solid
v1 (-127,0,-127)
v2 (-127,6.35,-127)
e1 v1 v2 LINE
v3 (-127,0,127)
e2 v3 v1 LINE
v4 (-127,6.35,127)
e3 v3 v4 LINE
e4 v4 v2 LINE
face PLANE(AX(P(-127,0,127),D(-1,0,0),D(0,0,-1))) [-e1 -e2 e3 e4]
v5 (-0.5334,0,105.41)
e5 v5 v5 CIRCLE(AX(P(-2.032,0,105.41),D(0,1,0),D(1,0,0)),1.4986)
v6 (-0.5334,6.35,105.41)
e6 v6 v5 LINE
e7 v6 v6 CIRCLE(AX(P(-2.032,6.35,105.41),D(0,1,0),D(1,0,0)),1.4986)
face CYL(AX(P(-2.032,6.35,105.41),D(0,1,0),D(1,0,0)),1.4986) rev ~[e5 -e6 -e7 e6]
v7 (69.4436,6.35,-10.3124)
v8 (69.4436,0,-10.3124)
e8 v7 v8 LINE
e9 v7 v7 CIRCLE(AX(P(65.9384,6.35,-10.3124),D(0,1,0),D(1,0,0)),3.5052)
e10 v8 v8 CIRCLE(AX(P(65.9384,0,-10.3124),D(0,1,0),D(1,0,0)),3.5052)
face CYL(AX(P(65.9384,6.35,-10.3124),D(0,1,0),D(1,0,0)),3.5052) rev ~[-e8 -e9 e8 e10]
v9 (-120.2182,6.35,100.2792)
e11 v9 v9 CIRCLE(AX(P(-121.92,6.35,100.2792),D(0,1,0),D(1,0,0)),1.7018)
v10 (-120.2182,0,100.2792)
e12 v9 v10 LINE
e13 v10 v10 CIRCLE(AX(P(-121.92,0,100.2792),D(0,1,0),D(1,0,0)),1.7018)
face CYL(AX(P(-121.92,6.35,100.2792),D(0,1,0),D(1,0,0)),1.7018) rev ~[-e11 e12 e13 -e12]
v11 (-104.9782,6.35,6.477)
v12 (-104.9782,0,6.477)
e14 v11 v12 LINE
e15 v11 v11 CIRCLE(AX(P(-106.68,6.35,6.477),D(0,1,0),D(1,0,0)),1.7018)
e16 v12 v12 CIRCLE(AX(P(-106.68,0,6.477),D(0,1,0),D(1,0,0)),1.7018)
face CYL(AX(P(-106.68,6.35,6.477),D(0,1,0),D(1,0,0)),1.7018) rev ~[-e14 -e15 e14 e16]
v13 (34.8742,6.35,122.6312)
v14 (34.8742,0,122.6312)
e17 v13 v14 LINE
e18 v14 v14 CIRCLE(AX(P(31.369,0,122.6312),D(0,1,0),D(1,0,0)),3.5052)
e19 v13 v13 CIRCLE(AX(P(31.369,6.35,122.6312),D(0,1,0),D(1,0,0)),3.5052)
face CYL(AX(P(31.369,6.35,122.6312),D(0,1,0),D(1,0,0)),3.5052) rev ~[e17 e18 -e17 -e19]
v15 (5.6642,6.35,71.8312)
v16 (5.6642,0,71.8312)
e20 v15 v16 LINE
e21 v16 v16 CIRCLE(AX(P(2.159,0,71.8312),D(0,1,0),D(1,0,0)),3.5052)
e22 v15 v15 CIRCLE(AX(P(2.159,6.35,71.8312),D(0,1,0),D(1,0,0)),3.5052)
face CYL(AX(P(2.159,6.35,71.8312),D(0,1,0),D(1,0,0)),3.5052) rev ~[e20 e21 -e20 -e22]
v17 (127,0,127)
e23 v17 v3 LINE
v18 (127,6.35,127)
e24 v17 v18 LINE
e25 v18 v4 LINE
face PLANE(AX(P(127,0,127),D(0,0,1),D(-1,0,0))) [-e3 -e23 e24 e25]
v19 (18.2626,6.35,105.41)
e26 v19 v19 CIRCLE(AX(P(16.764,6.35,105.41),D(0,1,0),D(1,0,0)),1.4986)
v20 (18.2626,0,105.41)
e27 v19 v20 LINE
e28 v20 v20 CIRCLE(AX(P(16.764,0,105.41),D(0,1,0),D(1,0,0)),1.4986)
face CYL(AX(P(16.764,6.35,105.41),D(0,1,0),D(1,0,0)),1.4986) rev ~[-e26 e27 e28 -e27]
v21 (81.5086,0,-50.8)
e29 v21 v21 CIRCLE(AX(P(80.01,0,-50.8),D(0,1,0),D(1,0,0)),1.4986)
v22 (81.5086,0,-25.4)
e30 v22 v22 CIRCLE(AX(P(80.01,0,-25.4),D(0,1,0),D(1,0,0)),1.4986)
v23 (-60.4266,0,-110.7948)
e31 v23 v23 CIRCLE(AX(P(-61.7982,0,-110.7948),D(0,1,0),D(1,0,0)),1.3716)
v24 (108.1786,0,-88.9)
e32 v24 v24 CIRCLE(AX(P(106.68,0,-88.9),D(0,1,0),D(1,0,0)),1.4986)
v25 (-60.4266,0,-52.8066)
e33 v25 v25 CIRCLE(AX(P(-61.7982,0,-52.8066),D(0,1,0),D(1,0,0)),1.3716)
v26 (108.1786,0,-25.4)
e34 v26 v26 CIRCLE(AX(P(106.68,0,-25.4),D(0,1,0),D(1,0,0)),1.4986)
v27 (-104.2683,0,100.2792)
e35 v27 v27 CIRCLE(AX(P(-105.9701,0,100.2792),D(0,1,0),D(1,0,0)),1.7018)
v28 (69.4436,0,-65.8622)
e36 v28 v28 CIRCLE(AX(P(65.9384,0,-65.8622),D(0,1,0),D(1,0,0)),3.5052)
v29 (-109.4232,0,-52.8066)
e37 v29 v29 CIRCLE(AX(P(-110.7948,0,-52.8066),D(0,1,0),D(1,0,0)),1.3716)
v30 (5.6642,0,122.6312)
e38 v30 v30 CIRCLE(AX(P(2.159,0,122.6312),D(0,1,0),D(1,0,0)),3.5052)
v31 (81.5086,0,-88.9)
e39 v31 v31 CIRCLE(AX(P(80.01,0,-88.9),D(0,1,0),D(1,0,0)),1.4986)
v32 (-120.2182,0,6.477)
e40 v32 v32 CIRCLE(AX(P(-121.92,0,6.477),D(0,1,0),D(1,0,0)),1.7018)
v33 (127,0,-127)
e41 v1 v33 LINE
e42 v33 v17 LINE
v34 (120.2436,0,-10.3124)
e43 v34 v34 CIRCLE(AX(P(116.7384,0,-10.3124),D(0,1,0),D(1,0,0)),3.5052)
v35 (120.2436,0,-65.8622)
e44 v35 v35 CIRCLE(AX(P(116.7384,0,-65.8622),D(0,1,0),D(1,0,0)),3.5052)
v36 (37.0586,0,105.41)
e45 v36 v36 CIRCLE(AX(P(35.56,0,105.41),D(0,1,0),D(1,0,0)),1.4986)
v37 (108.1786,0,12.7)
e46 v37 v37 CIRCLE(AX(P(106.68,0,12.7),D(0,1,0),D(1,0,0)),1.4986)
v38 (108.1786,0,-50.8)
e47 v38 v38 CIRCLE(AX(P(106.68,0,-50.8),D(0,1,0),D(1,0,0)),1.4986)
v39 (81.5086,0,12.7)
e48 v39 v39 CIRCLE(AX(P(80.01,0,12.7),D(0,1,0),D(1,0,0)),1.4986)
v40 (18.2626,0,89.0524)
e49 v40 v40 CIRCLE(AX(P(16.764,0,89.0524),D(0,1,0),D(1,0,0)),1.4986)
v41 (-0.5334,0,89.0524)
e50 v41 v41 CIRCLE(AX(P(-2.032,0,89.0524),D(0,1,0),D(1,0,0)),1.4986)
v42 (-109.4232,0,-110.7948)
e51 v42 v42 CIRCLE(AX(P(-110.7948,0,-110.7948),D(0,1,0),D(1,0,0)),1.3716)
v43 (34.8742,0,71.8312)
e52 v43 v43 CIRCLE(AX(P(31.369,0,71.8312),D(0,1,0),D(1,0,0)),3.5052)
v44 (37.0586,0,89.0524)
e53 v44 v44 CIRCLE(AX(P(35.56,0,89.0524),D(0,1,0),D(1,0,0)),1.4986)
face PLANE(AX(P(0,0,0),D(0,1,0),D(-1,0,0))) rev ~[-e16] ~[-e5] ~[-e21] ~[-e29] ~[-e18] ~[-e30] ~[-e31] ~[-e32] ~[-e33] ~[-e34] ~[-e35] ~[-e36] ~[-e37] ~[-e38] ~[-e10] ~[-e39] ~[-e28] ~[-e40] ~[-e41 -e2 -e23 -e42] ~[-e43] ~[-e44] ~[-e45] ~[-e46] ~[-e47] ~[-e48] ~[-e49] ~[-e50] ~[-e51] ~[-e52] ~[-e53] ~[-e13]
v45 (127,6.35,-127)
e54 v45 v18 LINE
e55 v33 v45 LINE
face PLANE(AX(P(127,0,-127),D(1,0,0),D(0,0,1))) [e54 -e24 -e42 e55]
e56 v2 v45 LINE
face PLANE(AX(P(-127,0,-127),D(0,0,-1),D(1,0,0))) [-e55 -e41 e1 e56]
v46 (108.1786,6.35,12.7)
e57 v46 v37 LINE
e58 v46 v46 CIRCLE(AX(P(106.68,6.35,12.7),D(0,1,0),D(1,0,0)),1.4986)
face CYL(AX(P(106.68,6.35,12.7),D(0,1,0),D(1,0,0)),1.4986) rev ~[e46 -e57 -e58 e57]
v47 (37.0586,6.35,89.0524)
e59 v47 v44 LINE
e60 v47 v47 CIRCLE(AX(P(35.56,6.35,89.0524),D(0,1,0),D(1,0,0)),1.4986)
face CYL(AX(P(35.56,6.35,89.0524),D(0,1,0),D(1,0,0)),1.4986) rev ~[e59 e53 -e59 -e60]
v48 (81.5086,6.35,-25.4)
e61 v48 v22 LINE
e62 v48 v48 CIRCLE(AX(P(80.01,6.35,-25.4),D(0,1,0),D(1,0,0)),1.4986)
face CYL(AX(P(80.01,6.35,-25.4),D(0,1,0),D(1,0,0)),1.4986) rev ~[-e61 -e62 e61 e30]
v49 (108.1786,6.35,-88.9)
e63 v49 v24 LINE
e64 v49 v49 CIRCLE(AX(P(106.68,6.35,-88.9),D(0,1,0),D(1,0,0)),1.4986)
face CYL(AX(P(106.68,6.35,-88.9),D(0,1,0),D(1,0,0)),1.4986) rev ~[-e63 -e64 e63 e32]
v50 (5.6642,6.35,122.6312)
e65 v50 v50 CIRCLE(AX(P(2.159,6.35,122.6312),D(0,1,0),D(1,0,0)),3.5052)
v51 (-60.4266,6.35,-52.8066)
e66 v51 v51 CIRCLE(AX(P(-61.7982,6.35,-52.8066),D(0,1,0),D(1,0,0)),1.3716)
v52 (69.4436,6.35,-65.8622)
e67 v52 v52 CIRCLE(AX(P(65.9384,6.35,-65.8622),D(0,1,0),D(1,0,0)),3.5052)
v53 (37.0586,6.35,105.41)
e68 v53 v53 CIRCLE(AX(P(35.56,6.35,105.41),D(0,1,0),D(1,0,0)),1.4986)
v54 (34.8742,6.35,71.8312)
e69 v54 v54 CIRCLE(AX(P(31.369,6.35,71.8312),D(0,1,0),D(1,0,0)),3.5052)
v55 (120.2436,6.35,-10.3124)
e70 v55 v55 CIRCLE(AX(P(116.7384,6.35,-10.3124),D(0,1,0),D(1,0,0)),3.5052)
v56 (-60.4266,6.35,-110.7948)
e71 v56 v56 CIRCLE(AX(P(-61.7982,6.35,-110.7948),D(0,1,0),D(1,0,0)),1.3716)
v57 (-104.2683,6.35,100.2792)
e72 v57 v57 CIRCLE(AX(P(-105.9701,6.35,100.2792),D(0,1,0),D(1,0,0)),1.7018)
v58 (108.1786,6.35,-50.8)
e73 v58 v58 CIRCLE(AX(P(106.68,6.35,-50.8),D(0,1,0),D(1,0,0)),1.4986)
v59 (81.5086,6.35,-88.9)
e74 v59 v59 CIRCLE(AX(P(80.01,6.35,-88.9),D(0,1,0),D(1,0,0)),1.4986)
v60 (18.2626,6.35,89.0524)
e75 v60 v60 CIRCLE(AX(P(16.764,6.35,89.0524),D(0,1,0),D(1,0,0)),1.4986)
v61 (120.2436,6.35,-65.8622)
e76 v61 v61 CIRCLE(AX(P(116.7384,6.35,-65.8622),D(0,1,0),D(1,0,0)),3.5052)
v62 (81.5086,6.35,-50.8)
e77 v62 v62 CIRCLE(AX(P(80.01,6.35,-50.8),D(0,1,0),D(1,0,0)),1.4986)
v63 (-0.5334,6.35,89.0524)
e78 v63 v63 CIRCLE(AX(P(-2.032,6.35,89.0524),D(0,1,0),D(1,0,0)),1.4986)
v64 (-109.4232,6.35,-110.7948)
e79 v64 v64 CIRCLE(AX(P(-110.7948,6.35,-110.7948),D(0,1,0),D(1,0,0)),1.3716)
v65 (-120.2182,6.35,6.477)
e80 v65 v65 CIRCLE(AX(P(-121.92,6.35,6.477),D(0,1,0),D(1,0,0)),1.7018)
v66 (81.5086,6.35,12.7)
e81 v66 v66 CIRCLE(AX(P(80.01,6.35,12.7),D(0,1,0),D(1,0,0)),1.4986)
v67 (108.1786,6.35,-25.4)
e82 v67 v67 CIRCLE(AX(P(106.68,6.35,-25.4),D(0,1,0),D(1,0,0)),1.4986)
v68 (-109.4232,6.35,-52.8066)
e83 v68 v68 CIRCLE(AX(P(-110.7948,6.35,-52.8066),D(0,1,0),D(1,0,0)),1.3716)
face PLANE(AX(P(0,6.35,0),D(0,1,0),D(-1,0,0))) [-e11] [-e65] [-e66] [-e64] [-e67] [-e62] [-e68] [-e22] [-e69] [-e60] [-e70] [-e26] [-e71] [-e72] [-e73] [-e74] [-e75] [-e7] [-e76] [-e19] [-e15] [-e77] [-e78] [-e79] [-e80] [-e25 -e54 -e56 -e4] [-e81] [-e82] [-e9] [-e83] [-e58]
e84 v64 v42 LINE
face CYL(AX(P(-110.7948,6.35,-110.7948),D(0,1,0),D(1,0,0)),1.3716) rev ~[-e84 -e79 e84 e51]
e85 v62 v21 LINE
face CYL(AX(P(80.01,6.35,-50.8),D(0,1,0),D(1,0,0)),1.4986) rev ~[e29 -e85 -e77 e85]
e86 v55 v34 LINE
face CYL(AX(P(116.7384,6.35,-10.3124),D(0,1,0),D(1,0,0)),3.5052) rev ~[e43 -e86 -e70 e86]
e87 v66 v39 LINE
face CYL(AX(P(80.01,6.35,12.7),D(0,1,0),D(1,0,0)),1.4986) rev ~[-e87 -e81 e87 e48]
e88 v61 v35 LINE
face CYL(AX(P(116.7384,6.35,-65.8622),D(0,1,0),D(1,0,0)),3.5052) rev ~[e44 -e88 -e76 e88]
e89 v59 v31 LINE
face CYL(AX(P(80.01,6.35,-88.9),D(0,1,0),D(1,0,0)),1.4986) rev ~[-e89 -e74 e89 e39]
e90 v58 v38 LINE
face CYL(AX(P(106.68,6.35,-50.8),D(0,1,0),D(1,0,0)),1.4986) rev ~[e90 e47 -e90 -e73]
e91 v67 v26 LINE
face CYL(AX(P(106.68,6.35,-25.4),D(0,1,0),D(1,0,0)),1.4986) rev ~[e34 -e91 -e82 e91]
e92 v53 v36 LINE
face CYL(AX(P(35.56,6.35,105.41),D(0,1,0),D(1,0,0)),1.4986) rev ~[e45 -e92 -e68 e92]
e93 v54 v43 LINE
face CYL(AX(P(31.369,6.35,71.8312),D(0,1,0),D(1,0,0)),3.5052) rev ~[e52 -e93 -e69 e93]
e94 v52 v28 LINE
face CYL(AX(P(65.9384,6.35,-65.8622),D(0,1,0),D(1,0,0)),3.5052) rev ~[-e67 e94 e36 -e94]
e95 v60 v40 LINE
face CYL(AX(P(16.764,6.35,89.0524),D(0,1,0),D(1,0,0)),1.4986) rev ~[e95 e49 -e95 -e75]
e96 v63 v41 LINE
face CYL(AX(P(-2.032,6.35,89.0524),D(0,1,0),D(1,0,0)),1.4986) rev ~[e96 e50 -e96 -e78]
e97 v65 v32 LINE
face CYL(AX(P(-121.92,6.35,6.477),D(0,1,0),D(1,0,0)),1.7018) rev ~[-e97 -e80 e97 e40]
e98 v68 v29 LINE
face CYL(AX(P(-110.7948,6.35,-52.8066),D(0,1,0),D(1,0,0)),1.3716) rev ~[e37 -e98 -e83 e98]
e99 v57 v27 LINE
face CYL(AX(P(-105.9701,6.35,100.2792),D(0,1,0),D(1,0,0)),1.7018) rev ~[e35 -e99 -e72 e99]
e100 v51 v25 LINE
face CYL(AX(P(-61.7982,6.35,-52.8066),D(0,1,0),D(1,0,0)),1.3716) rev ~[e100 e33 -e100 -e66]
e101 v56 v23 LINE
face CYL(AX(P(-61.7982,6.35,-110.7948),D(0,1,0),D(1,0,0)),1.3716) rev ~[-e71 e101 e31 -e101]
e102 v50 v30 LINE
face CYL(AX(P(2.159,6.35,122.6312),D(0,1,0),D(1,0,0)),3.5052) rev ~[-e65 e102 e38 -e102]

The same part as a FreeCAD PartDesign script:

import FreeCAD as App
import Part
import Sketcher
from FreeCAD import Vector
Q = App.Units.Quantity

doc = App.newDocument("Part")
body = doc.addObject("PartDesign::Body", "Body")

sketch1 = body.newObject("Sketcher::SketchObject", "Sketch")
sketch1.AttachmentSupport = (doc.getObject("XZ_Plane"), [""])
sketch1.MapMode = "FlatFace"
sketch1.addGeometry([
    Part.LineSegment(Vector(-127, 127, 0), Vector(127, 127, 0)),
    Part.LineSegment(Vector(127, 127, 0), Vector(127, -127, 0)),
    Part.LineSegment(Vector(127, -127, 0), Vector(-127, -127, 0)),
    Part.LineSegment(Vector(-127, -127, 0), Vector(-127, 127, 0)),
], False)
sketch1.addConstraint([
    Sketcher.Constraint("Coincident", 0, 2, 1, 1),
    Sketcher.Constraint("Coincident", 1, 2, 2, 1),
    Sketcher.Constraint("Coincident", 2, 2, 3, 1),
    Sketcher.Constraint("Coincident", 3, 2, 0, 1),
    Sketcher.Constraint("Horizontal", 0),
    Sketcher.Constraint("Vertical", 1),
    Sketcher.Constraint("Horizontal", 2),
    Sketcher.Constraint("Vertical", 3),
    Sketcher.Constraint("Symmetric", 0, 2, 2, 2, -1, 1),
    Sketcher.Constraint("Equal", 2, 1),
    Sketcher.Constraint("DistanceX", 0, 1, 0, 2, Q("10 in")),
])
pad1 = body.newObject("PartDesign::Pad", "Pad")
pad1.Profile = sketch1
pad1.Length = Q("0.25 in")
pad1.Reversed = True

sketch2 = body.newObject("Sketcher::SketchObject", "Sketch001")
sketch2.AttachmentSupport = (doc.getObject("XZ_Plane"), [""])
sketch2.MapMode = "FlatFace"
sketch2.AttachmentOffset = App.Placement(Vector(0, 0, -0.25 * 25.4), App.Rotation())
sketch2.addGeometry([
    Part.Circle(Vector(80.01, 12.7, 0), Vector(0, 0, 1), 1.4986),
    Part.Circle(Vector(80.01, -25.4, 0), Vector(0, 0, 1), 1.4986),
    Part.Circle(Vector(80.01, -50.8, 0), Vector(0, 0, 1), 1.4986),
    Part.Circle(Vector(80.01, -88.9, 0), Vector(0, 0, 1), 1.4986),
    Part.Circle(Vector(106.68, 12.7, 0), Vector(0, 0, 1), 1.4986),
    Part.Circle(Vector(106.68, -25.4, 0), Vector(0, 0, 1), 1.4986),
    Part.Circle(Vector(106.68, -50.8, 0), Vector(0, 0, 1), 1.4986),
    Part.Circle(Vector(106.68, -88.9, 0), Vector(0, 0, 1), 1.4986),
], False)
sketch2.addConstraint([
    Sketcher.Constraint("Equal", 0, 1),
    Sketcher.Constraint("Equal", 1, 2),
    Sketcher.Constraint("Equal", 2, 3),
    Sketcher.Constraint("Equal", 3, 4),
    Sketcher.Constraint("Equal", 4, 5),
    Sketcher.Constraint("Equal", 5, 6),
    Sketcher.Constraint("Equal", 6, 7),
    Sketcher.Constraint("Horizontal", 0, 3, 4, 3),
    Sketcher.Constraint("Horizontal", 1, 3, 5, 3),
    Sketcher.Constraint("Horizontal", 2, 3, 6, 3),
    Sketcher.Constraint("Horizontal", 3, 3, 7, 3),
    Sketcher.Constraint("Vertical", 0, 3, 1, 3),
    Sketcher.Constraint("Vertical", 1, 3, 2, 3),
    Sketcher.Constraint("Vertical", 2, 3, 3, 3),
    Sketcher.Constraint("Vertical", 4, 3, 5, 3),
    Sketcher.Constraint("Vertical", 5, 3, 6, 3),
    Sketcher.Constraint("Vertical", 6, 3, 7, 3),
    Sketcher.Constraint("Diameter", 0, Q("0.118 in")),
    Sketcher.Constraint("DistanceY", 1, 3, -1, 1, Q("1 in")),
    Sketcher.Constraint("DistanceY", 2, 3, -1, 1, Q("2 in")),
    Sketcher.Constraint("DistanceY", 3, 3, 0, 3, Q("4 in")),
    Sketcher.Constraint("DistanceY", -1, 1, 0, 3, Q("0.5 in")),
    Sketcher.Constraint("DistanceX", -1, 1, 4, 3, Q("4.2 in")),
    Sketcher.Constraint("DistanceX", -1, 1, 0, 3, Q("3.15 in")),
])
pocket1 = body.newObject("PartDesign::Pocket", "Pocket")
pocket1.Profile = sketch2
pocket1.Length = Q("0.25 in")
pocket1.Reversed = True

sketch3 = body.newObject("Sketcher::SketchObject", "Sketch002")
sketch3.AttachmentSupport = (doc.getObject("XZ_Plane"), [""])
sketch3.MapMode = "FlatFace"
sketch3.AttachmentOffset = App.Placement(Vector(0, 0, -0.25 * 25.4), App.Rotation())
sketch3.addGeometry([
    Part.Circle(Vector(65.9384, -10.3124, 0), Vector(0, 0, 1), 3.5052),
    Part.Circle(Vector(65.9384, -65.8622, 0), Vector(0, 0, 1), 3.5052),
    Part.Circle(Vector(116.7384, -65.8622, 0), Vector(0, 0, 1), 3.5052),
    Part.Circle(Vector(116.7384, -10.3124, 0), Vector(0, 0, 1), 3.5052),
], False)
sketch3.addConstraint([
    Sketcher.Constraint("Equal", 0, 1),
    Sketcher.Constraint("Equal", 1, 2),
    Sketcher.Constraint("Equal", 2, 3),
    Sketcher.Constraint("Horizontal", 1, 3, 2, 3),
    Sketcher.Constraint("Horizontal", 0, 3, 3, 3),
    Sketcher.Constraint("Vertical", 0, 3, 1, 3),
    Sketcher.Constraint("Vertical", 2, 3, 3, 3),
    Sketcher.Constraint("Diameter", 0, Q("0.276 in")),
    Sketcher.Constraint("DistanceX", 1, 3, 2, 3, Q("2 in")),
    Sketcher.Constraint("DistanceX", -1, 1, 0, 3, Q("2.596 in")),
    Sketcher.Constraint("DistanceY", 0, 3, -1, 1, Q("0.406 in")),
    Sketcher.Constraint("DistanceY", 1, 3, -1, 1, Q("2.593 in")),
])
pocket2 = body.newObject("PartDesign::Pocket", "Pocket001")
pocket2.Profile = sketch3
pocket2.Length = Q("0.25 in")
pocket2.Reversed = True

sketch4 = body.newObject("Sketcher::SketchObject", "Sketch003")
sketch4.AttachmentSupport = (doc.getObject("XZ_Plane"), [""])
sketch4.MapMode = "FlatFace"
sketch4.AttachmentOffset = App.Placement(Vector(0, 0, -0.25 * 25.4), App.Rotation())
sketch4.addGeometry([
    Part.Circle(Vector(2.159, 71.8312, 0), Vector(0, 0, 1), 3.5052),
    Part.Circle(Vector(2.159, 122.6312, 0), Vector(0, 0, 1), 3.5052),
    Part.Circle(Vector(31.369, 71.8312, 0), Vector(0, 0, 1), 3.5052),
    Part.Circle(Vector(31.369, 122.6312, 0), Vector(0, 0, 1), 3.5052),
], False)
sketch4.addConstraint([
    Sketcher.Constraint("Equal", 0, 1),
    Sketcher.Constraint("Equal", 1, 2),
    Sketcher.Constraint("Equal", 2, 3),
    Sketcher.Constraint("Horizontal", 0, 3, 2, 3),
    Sketcher.Constraint("Horizontal", 1, 3, 3, 3),
    Sketcher.Constraint("Vertical", 0, 3, 1, 3),
    Sketcher.Constraint("Vertical", 2, 3, 3, 3),
    Sketcher.Constraint("Diameter", 0, Q("0.276 in")),
    Sketcher.Constraint("DistanceY", 0, 3, 1, 3, Q("2 in")),
    Sketcher.Constraint("DistanceX", 0, 3, 2, 3, Q("1.15 in")),
    Sketcher.Constraint("DistanceX", -1, 1, 0, 3, Q("0.085 in")),
    Sketcher.Constraint("DistanceY", -1, 1, 0, 3, Q("2.828 in")),
])
pocket3 = body.newObject("PartDesign::Pocket", "Pocket002")
pocket3.Profile = sketch4
pocket3.Length = Q("0.25 in")
pocket3.Reversed = True

sketch5 = body.newObject("Sketcher::SketchObject", "Sketch004")
sketch5.AttachmentSupport = (doc.getObject("XZ_Plane"), [""])
sketch5.MapMode = "FlatFace"
sketch5.AttachmentOffset = App.Placement(Vector(0, 0, -0.25 * 25.4), App.Rotation())
sketch5.addGeometry([
    Part.Circle(Vector(16.764, 105.41, 0), Vector(0, 0, 1), 1.4986),
    Part.Circle(Vector(-2.032, 105.41, 0), Vector(0, 0, 1), 1.4986),
    Part.Circle(Vector(-2.032, 89.0524, 0), Vector(0, 0, 1), 1.4986),
    Part.Circle(Vector(16.764, 89.0524, 0), Vector(0, 0, 1), 1.4986),
    Part.Circle(Vector(35.56, 89.0524, 0), Vector(0, 0, 1), 1.4986),
    Part.Circle(Vector(35.56, 105.41, 0), Vector(0, 0, 1), 1.4986),
], False)
sketch5.addConstraint([
    Sketcher.Constraint("Equal", 0, 1),
    Sketcher.Constraint("Equal", 1, 2),
    Sketcher.Constraint("Equal", 2, 3),
    Sketcher.Constraint("Equal", 3, 4),
    Sketcher.Constraint("Equal", 4, 5),
    Sketcher.Constraint("Horizontal", 0, 3, 1, 3),
    Sketcher.Constraint("Horizontal", 2, 3, 3, 3),
    Sketcher.Constraint("Horizontal", 3, 3, 4, 3),
    Sketcher.Constraint("Horizontal", 1, 3, 5, 3),
    Sketcher.Constraint("Vertical", 1, 3, 2, 3),
    Sketcher.Constraint("Vertical", 0, 3, 3, 3),
    Sketcher.Constraint("Vertical", 4, 3, 5, 3),
    Sketcher.Constraint("Diameter", 0, Q("0.118 in")),
    Sketcher.Constraint("DistanceX", -1, 1, 4, 3, Q("1.4 in")),
    Sketcher.Constraint("DistanceX", -1, 1, 0, 3, Q("0.66 in")),
    Sketcher.Constraint("DistanceY", -1, 1, 0, 3, Q("4.15 in")),
    Sketcher.Constraint("DistanceX", 1, 3, -1, 1, Q("0.08 in")),
    Sketcher.Constraint("DistanceY", -1, 1, 2, 3, Q("3.506 in")),
])
pocket4 = body.newObject("PartDesign::Pocket", "Pocket003")
pocket4.Profile = sketch5
pocket4.Length = Q("0.25 in")
pocket4.Reversed = True

sketch6 = body.newObject("Sketcher::SketchObject", "Sketch005")
sketch6.AttachmentSupport = (doc.getObject("XZ_Plane"), [""])
sketch6.MapMode = "FlatFace"
sketch6.AttachmentOffset = App.Placement(Vector(0, 0, -0.25 * 25.4), App.Rotation())
sketch6.addGeometry([
    Part.Circle(Vector(-121.92, 6.477, 0), Vector(0, 0, 1), 1.7018),
    Part.Circle(Vector(-121.92, 100.2792, 0), Vector(0, 0, 1), 1.7018),
    Part.Circle(Vector(-105.9701, 100.2792, 0), Vector(0, 0, 1), 1.7018),
    Part.Circle(Vector(-106.68, 6.477, 0), Vector(0, 0, 1), 1.7018),
], False)
sketch6.addConstraint([
    Sketcher.Constraint("Equal", 0, 1),
    Sketcher.Constraint("Equal", 1, 2),
    Sketcher.Constraint("Equal", 2, 3),
    Sketcher.Constraint("Horizontal", 1, 3, 2, 3),
    Sketcher.Constraint("Horizontal", 0, 3, 3, 3),
    Sketcher.Constraint("Vertical", 0, 3, 1, 3),
    Sketcher.Constraint("Diameter", 0, Q("0.134 in")),
    Sketcher.Constraint("DistanceX", 0, 3, -1, 1, Q("4.8 in")),
    Sketcher.Constraint("DistanceX", 3, 3, -1, 1, Q("4.2 in")),
    Sketcher.Constraint("DistanceY", -1, 1, 0, 3, Q("0.255 in")),
    Sketcher.Constraint("DistanceY", -1, 1, 1, 3, Q("3.948 in")),
    Sketcher.Constraint("DistanceX", 2, 3, -1, 1, Q("105.97 mm")),
])
pocket5 = body.newObject("PartDesign::Pocket", "Pocket004")
pocket5.Profile = sketch6
pocket5.Length = Q("0.25 in")
pocket5.Reversed = True

sketch7 = body.newObject("Sketcher::SketchObject", "Sketch006")
sketch7.AttachmentSupport = (doc.getObject("XZ_Plane"), [""])
sketch7.MapMode = "FlatFace"
sketch7.AttachmentOffset = App.Placement(Vector(0, 0, -0.25 * 25.4), App.Rotation())
sketch7.addGeometry([
    Part.Circle(Vector(-110.7948, -110.7948, 0), Vector(0, 0, 1), 1.3716),
    Part.Circle(Vector(-110.7948, -52.8066, 0), Vector(0, 0, 1), 1.3716),
    Part.Circle(Vector(-61.7982, -52.8066, 0), Vector(0, 0, 1), 1.3716),
    Part.Circle(Vector(-61.7982, -110.7948, 0), Vector(0, 0, 1), 1.3716),
], False)
sketch7.addConstraint([
    Sketcher.Constraint("Equal", 0, 1),
    Sketcher.Constraint("Equal", 1, 2),
    Sketcher.Constraint("Equal", 2, 3),
    Sketcher.Constraint("Horizontal", 1, 3, 2, 3),
    Sketcher.Constraint("Horizontal", 0, 3, 3, 3),
    Sketcher.Constraint("Vertical", 0, 3, 1, 3),
    Sketcher.Constraint("Vertical", 2, 3, 3, 3),
    Sketcher.Constraint("Diameter", 0, Q("0.108 in")),
    Sketcher.Constraint("DistanceX", 0, 3, -1, 1, Q("4.362 in")),
    Sketcher.Constraint("DistanceY", 0, 3, -1, 1, Q("4.362 in")),
    Sketcher.Constraint("DistanceY", 1, 3, -1, 1, Q("2.079 in")),
    Sketcher.Constraint("DistanceX", 2, 3, -1, 1, Q("2.433 in")),
])
pocket6 = body.newObject("PartDesign::Pocket", "Pocket005")
pocket6.Profile = sketch7
pocket6.Length = Q("0.25 in")
pocket6.Reversed = True

doc.recompute()
